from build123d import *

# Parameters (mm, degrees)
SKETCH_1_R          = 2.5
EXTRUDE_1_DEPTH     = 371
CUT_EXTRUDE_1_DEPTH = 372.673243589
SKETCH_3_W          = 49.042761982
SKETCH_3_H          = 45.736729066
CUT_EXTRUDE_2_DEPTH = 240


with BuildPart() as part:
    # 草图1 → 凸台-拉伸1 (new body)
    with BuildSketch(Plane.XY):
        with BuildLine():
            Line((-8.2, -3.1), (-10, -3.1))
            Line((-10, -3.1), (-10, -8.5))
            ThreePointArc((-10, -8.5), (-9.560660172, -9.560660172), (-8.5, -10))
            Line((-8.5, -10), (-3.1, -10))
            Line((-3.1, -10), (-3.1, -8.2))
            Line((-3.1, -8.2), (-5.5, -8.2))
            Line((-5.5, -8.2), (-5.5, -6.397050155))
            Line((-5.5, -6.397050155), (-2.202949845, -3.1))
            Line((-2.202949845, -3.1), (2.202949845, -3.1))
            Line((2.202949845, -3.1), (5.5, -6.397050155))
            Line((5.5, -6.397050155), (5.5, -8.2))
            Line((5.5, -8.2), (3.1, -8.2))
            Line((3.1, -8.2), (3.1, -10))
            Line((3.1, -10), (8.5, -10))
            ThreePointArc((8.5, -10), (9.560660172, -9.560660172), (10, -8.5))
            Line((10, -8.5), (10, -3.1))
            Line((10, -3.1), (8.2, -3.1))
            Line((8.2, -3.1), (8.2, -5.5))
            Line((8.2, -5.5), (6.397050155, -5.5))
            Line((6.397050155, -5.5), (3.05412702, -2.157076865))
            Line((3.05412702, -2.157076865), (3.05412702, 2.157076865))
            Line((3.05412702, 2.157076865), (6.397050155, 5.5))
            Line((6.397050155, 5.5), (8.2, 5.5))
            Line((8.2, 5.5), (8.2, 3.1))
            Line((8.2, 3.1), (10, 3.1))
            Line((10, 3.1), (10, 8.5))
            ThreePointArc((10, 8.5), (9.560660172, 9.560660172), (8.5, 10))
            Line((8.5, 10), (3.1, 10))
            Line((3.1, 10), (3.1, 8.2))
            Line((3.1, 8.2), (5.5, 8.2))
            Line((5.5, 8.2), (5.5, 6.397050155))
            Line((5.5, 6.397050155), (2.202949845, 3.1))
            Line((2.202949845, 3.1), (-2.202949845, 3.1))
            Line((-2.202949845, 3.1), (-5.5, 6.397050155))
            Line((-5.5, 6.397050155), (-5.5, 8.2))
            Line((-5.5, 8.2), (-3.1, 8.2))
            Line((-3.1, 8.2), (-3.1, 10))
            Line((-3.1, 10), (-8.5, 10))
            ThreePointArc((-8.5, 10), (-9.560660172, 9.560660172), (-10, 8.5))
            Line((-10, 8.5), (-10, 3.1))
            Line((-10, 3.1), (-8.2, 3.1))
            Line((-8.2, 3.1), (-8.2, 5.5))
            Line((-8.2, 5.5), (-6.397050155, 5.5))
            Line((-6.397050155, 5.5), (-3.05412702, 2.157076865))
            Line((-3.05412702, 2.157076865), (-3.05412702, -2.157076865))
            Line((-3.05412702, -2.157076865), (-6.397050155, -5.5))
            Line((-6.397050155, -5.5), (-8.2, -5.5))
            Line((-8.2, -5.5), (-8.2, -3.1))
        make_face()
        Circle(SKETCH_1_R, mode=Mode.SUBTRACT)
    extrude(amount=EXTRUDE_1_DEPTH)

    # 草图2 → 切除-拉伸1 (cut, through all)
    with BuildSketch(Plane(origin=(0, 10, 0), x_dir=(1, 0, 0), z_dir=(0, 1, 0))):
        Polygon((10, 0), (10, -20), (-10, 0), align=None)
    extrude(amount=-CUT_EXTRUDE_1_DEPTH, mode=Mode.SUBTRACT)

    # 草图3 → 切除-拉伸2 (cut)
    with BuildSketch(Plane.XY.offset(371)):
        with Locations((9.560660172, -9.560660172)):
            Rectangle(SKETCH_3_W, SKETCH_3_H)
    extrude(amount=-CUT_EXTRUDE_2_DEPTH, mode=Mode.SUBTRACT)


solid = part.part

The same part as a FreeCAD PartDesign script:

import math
import FreeCAD as App
import Part
import Sketcher
from FreeCAD import Vector
Q = App.Units.Quantity


def add_polygon(sketch, points):
    """Adds a closed chain of lines whose ends are joined by coincident constraints."""
    first, n = sketch.GeometryCount, len(points)
    for a, b in zip(points, points[1:] + points[:1]):
        sketch.addGeometry(Part.LineSegment(App.Vector(*a, 0), App.Vector(*b, 0)), False)
    for i in range(n):
        sketch.addConstraint(Sketcher.Constraint("Coincident", first + i, 2, first + (i + 1) % n, 1))

doc = App.newDocument("Part")
body = doc.addObject("PartDesign::Body", "Body")

sketch1 = body.newObject("Sketcher::SketchObject", "Sketch")
sketch1.AttachmentSupport = (doc.getObject("XY_Plane"), [""])
sketch1.MapMode = "FlatFace"
sketch1.addGeometry(Part.LineSegment(Vector(-8.2, -3.1, 0), Vector(-10, -3.1, 0)), False)
sketch1.addGeometry(Part.LineSegment(Vector(-10, -3.1, 0), Vector(-10, -8.5, 0)), False)
sketch1.addGeometry(Part.ArcOfCircle(Part.Circle(Vector(-8.5, -8.5, 0), Vector(0, 0, 1), 1.5), math.radians(180), math.radians(270)), False)
sketch1.addGeometry(Part.LineSegment(Vector(-8.5, -10, 0), Vector(-3.1, -10, 0)), False)
sketch1.addGeometry(Part.LineSegment(Vector(-3.1, -10, 0), Vector(-3.1, -8.2, 0)), False)
sketch1.addGeometry(Part.LineSegment(Vector(-3.1, -8.2, 0), Vector(-5.5, -8.2, 0)), False)
sketch1.addGeometry(Part.LineSegment(Vector(-5.5, -8.2, 0), Vector(-5.5, -6.39705, 0)), False)
sketch1.addGeometry(Part.LineSegment(Vector(-5.5, -6.39705, 0), Vector(-2.20295, -3.1, 0)), False)
sketch1.addGeometry(Part.LineSegment(Vector(-2.20295, -3.1, 0), Vector(2.20295, -3.1, 0)), False)
sketch1.addGeometry(Part.LineSegment(Vector(2.20295, -3.1, 0), Vector(5.5, -6.39705, 0)), False)
sketch1.addGeometry(Part.LineSegment(Vector(5.5, -6.39705, 0), Vector(5.5, -8.2, 0)), False)
sketch1.addGeometry(Part.LineSegment(Vector(5.5, -8.2, 0), Vector(3.1, -8.2, 0)), False)
sketch1.addGeometry(Part.LineSegment(Vector(3.1, -8.2, 0), Vector(3.1, -10, 0)), False)
sketch1.addGeometry(Part.LineSegment(Vector(3.1, -10, 0), Vector(8.5, -10, 0)), False)
sketch1.addGeometry(Part.ArcOfCircle(Part.Circle(Vector(8.5, -8.5, 0), Vector(0, 0, 1), 1.5), math.radians(-90), math.radians(0)), False)
sketch1.addGeometry(Part.LineSegment(Vector(10, -8.5, 0), Vector(10, -3.1, 0)), False)
sketch1.addGeometry(Part.LineSegment(Vector(10, -3.1, 0), Vector(8.2, -3.1, 0)), False)
sketch1.addGeometry(Part.LineSegment(Vector(8.2, -3.1, 0), Vector(8.2, -5.5, 0)), False)
sketch1.addGeometry(Part.LineSegment(Vector(8.2, -5.5, 0), Vector(6.39705, -5.5, 0)), False)
sketch1.addGeometry(Part.LineSegment(Vector(6.39705, -5.5, 0), Vector(3.054127, -2.157077, 0)), False)
sketch1.addGeometry(Part.LineSegment(Vector(3.054127, -2.157077, 0), Vector(3.054127, 2.157077, 0)), False)
sketch1.addGeometry(Part.LineSegment(Vector(3.054127, 2.157077, 0), Vector(6.39705, 5.5, 0)), False)
sketch1.addGeometry(Part.LineSegment(Vector(6.39705, 5.5, 0), Vector(8.2, 5.5, 0)), False)
sketch1.addGeometry(Part.LineSegment(Vector(8.2, 5.5, 0), Vector(8.2, 3.1, 0)), False)
sketch1.addGeometry(Part.LineSegment(Vector(8.2, 3.1, 0), Vector(10, 3.1, 0)), False)
sketch1.addGeometry(Part.LineSegment(Vector(10, 3.1, 0), Vector(10, 8.5, 0)), False)
sketch1.addGeometry(Part.ArcOfCircle(Part.Circle(Vector(8.5, 8.5, 0), Vector(0, 0, 1), 1.5), math.radians(0), math.radians(90)), False)
sketch1.addGeometry(Part.LineSegment(Vector(8.5, 10, 0), Vector(3.1, 10, 0)), False)
sketch1.addGeometry(Part.LineSegment(Vector(3.1, 10, 0), Vector(3.1, 8.2, 0)), False)
sketch1.addGeometry(Part.LineSegment(Vector(3.1, 8.2, 0), Vector(5.5, 8.2, 0)), False)
sketch1.addGeometry(Part.LineSegment(Vector(5.5, 8.2, 0), Vector(5.5, 6.39705, 0)), False)
sketch1.addGeometry(Part.LineSegment(Vector(5.5, 6.39705, 0), Vector(2.20295, 3.1, 0)), False)
sketch1.addGeometry(Part.LineSegment(Vector(2.20295, 3.1, 0), Vector(-2.20295, 3.1, 0)), False)
sketch1.addGeometry(Part.LineSegment(Vector(-2.20295, 3.1, 0), Vector(-5.5, 6.39705, 0)), False)
sketch1.addGeometry(Part.LineSegment(Vector(-5.5, 6.39705, 0), Vector(-5.5, 8.2, 0)), False)
sketch1.addGeometry(Part.LineSegment(Vector(-5.5, 8.2, 0), Vector(-3.1, 8.2, 0)), False)
sketch1.addGeometry(Part.LineSegment(Vector(-3.1, 8.2, 0), Vector(-3.1, 10, 0)), False)
sketch1.addGeometry(Part.LineSegment(Vector(-3.1, 10, 0), Vector(-8.5, 10, 0)), False)
sketch1.addGeometry(Part.ArcOfCircle(Part.Circle(Vector(-8.5, 8.5, 0), Vector(0, 0, 1), 1.5), math.radians(90), math.radians(180)), False)
sketch1.addGeometry(Part.LineSegment(Vector(-10, 8.5, 0), Vector(-10, 3.1, 0)), False)
sketch1.addGeometry(Part.LineSegment(Vector(-10, 3.1, 0), Vector(-8.2, 3.1, 0)), False)
sketch1.addGeometry(Part.LineSegment(Vector(-8.2, 3.1, 0), Vector(-8.2, 5.5, 0)), False)
sketch1.addGeometry(Part.LineSegment(Vector(-8.2, 5.5, 0), Vector(-6.39705, 5.5, 0)), False)
sketch1.addGeometry(Part.LineSegment(Vector(-6.39705, 5.5, 0), Vector(-3.054127, 2.157077, 0)), False)
sketch1.addGeometry(Part.LineSegment(Vector(-3.054127, 2.157077, 0), Vector(-3.054127, -2.157077, 0)), False)
sketch1.addGeometry(Part.LineSegment(Vector(-3.054127, -2.157077, 0), Vector(-6.39705, -5.5, 0)), False)
sketch1.addGeometry(Part.LineSegment(Vector(-6.39705, -5.5, 0), Vector(-8.2, -5.5, 0)), False)
sketch1.addGeometry(Part.LineSegment(Vector(-8.2, -5.5, 0), Vector(-8.2, -3.1, 0)), False)
sketch1.addGeometry(Part.Circle(Vector(0, 0, 0), Vector(0, 0, 1), 2.5), False)
sketch1.addConstraint(Sketcher.Constraint("Coincident", 0, 2, 1, 1))
sketch1.addConstraint(Sketcher.Constraint("Tangent", 1, 2, 2, 1))
sketch1.addConstraint(Sketcher.Constraint("Tangent", 2, 2, 3, 1))
sketch1.addConstraint(Sketcher.Constraint("Coincident", 3, 2, 4, 1))
sketch1.addConstraint(Sketcher.Constraint("Coincident", 4, 2, 5, 1))
sketch1.addConstraint(Sketcher.Constraint("Coincident", 5, 2, 6, 1))
sketch1.addConstraint(Sketcher.Constraint("Coincident", 6, 2, 7, 1))
sketch1.addConstraint(Sketcher.Constraint("Coincident", 7, 2, 8, 1))
sketch1.addConstraint(Sketcher.Constraint("Coincident", 8, 2, 9, 1))
sketch1.addConstraint(Sketcher.Constraint("Coincident", 9, 2, 10, 1))
sketch1.addConstraint(Sketcher.Constraint("Coincident", 10, 2, 11, 1))
sketch1.addConstraint(Sketcher.Constraint("Coincident", 11, 2, 12, 1))
sketch1.addConstraint(Sketcher.Constraint("Coincident", 12, 2, 13, 1))
sketch1.addConstraint(Sketcher.Constraint("Tangent", 13, 2, 14, 1))
sketch1.addConstraint(Sketcher.Constraint("Tangent", 14, 2, 15, 1))
sketch1.addConstraint(Sketcher.Constraint("Coincident", 15, 2, 16, 1))
sketch1.addConstraint(Sketcher.Constraint("Coincident", 16, 2, 17, 1))
sketch1.addConstraint(Sketcher.Constraint("Coincident", 17, 2, 18, 1))
sketch1.addConstraint(Sketcher.Constraint("Coincident", 18, 2, 19, 1))
sketch1.addConstraint(Sketcher.Constraint("Coincident", 19, 2, 20, 1))
sketch1.addConstraint(Sketcher.Constraint("Coincident", 20, 2, 21, 1))
sketch1.addConstraint(Sketcher.Constraint("Coincident", 21, 2, 22, 1))
sketch1.addConstraint(Sketcher.Constraint("Coincident", 22, 2, 23, 1))
sketch1.addConstraint(Sketcher.Constraint("Coincident", 23, 2, 24, 1))
sketch1.addConstraint(Sketcher.Constraint("Coincident", 24, 2, 25, 1))
sketch1.addConstraint(Sketcher.Constraint("Tangent", 25, 2, 26, 1))
sketch1.addConstraint(Sketcher.Constraint("Tangent", 26, 2, 27, 1))
sketch1.addConstraint(Sketcher.Constraint("Coincident", 27, 2, 28, 1))
sketch1.addConstraint(Sketcher.Constraint("Coincident", 28, 2, 29, 1))
sketch1.addConstraint(Sketcher.Constraint("Coincident", 29, 2, 30, 1))
sketch1.addConstraint(Sketcher.Constraint("Coincident", 30, 2, 31, 1))
sketch1.addConstraint(Sketcher.Constraint("Coincident", 31, 2, 32, 1))
sketch1.addConstraint(Sketcher.Constraint("Coincident", 32, 2, 33, 1))
sketch1.addConstraint(Sketcher.Constraint("Coincident", 33, 2, 34, 1))
sketch1.addConstraint(Sketcher.Constraint("Coincident", 34, 2, 35, 1))
sketch1.addConstraint(Sketcher.Constraint("Coincident", 35, 2, 36, 1))
sketch1.addConstraint(Sketcher.Constraint("Coincident", 36, 2, 37, 1))
sketch1.addConstraint(Sketcher.Constraint("Tangent", 37, 2, 38, 1))
sketch1.addConstraint(Sketcher.Constraint("Tangent", 38, 2, 39, 1))
sketch1.addConstraint(Sketcher.Constraint("Coincident", 39, 2, 40, 1))
sketch1.addConstraint(Sketcher.Constraint("Coincident", 40, 2, 41, 1))
sketch1.addConstraint(Sketcher.Constraint("Coincident", 41, 2, 42, 1))
sketch1.addConstraint(Sketcher.Constraint("Coincident", 42, 2, 43, 1))
sketch1.addConstraint(Sketcher.Constraint("Coincident", 43, 2, 44, 1))
sketch1.addConstraint(Sketcher.Constraint("Coincident", 44, 2, 45, 1))
sketch1.addConstraint(Sketcher.Constraint("Coincident", 45, 2, 46, 1))
sketch1.addConstraint(Sketcher.Constraint("Coincident", 46, 2, 47, 1))
sketch1.addConstraint(Sketcher.Constraint("Coincident", 47, 2, 0, 1))
sketch1.addConstraint(Sketcher.Constraint("Horizontal", 0))
sketch1.addConstraint(Sketcher.Constraint("Vertical", 1))
sketch1.addConstraint(Sketcher.Constraint("Horizontal", 3))
sketch1.addConstraint(Sketcher.Constraint("Vertical", 4))
sketch1.addConstraint(Sketcher.Constraint("Horizontal", 5))
sketch1.addConstraint(Sketcher.Constraint("Vertical", 6))
sketch1.addConstraint(Sketcher.Constraint("Horizontal", 8))
sketch1.addConstraint(Sketcher.Constraint("Vertical", 10))
sketch1.addConstraint(Sketcher.Constraint("Horizontal", 11))
sketch1.addConstraint(Sketcher.Constraint("Vertical", 12))
sketch1.addConstraint(Sketcher.Constraint("Horizontal", 13))
sketch1.addConstraint(Sketcher.Constraint("Vertical", 15))
sketch1.addConstraint(Sketcher.Constraint("Horizontal", 16))
sketch1.addConstraint(Sketcher.Constraint("Vertical", 17))
sketch1.addConstraint(Sketcher.Constraint("Horizontal", 18))
sketch1.addConstraint(Sketcher.Constraint("Vertical", 20))
sketch1.addConstraint(Sketcher.Constraint("Horizontal", 22))
sketch1.addConstraint(Sketcher.Constraint("Vertical", 23))
sketch1.addConstraint(Sketcher.Constraint("Horizontal", 24))
sketch1.addConstraint(Sketcher.Constraint("Vertical", 25))
sketch1.addConstraint(Sketcher.Constraint("Horizontal", 27))
sketch1.addConstraint(Sketcher.Constraint("Vertical", 28))
sketch1.addConstraint(Sketcher.Constraint("Horizontal", 29))
sketch1.addConstraint(Sketcher.Constraint("Vertical", 30))
sketch1.addConstraint(Sketcher.Constraint("Horizontal", 32))
sketch1.addConstraint(Sketcher.Constraint("Vertical", 34))
sketch1.addConstraint(Sketcher.Constraint("Horizontal", 35))
sketch1.addConstraint(Sketcher.Constraint("Vertical", 36))
sketch1.addConstraint(Sketcher.Constraint("Horizontal", 37))
sketch1.addConstraint(Sketcher.Constraint("Vertical", 39))
sketch1.addConstraint(Sketcher.Constraint("Horizontal", 40))
sketch1.addConstraint(Sketcher.Constraint("Vertical", 41))
sketch1.addConstraint(Sketcher.Constraint("Horizontal", 42))
sketch1.addConstraint(Sketcher.Constraint("Vertical", 44))
sketch1.addConstraint(Sketcher.Constraint("Horizontal", 46))
sketch1.addConstraint(Sketcher.Constraint("Vertical", 47))
sketch1.addConstraint(Sketcher.Constraint("Coincident", 48, 3, -1, 1))
sketch1.addConstraint(Sketcher.Constraint("Equal", 2, 14))
sketch1.addConstraint(Sketcher.Constraint("Equal", 14, 26))
sketch1.addConstraint(Sketcher.Constraint("Equal", 26, 38))
sketch1.addConstraint(Sketcher.Constraint("Symmetric", 2, 3, 26, 3, -1, 1))
sketch1.addConstraint(Sketcher.Constraint("Symmetric", 14, 3, 38, 3, -1, 1))
sketch1.addConstraint(Sketcher.Constraint("Symmetric", 4, 2, 28, 2, -1, 1))
sketch1.addConstraint(Sketcher.Constraint("Symmetric", 6, 2, 30, 2, -1, 1))
sketch1.addConstraint(Sketcher.Constraint("Symmetric", 7, 2, 31, 2, -1, 1))
sketch1.addConstraint(Sketcher.Constraint("Symmetric", 9, 2, 33, 2, -1, 1))
sketch1.addConstraint(Sketcher.Constraint("Symmetric", 11, 2, 35, 2, -1, 1))
sketch1.addConstraint(Sketcher.Constraint("Symmetric", 16, 2, 40, 2, -1, 1))
sketch1.addConstraint(Sketcher.Constraint("Symmetric", 18, 2, 42, 2, -1, 1))
sketch1.addConstraint(Sketcher.Constraint("Symmetric", 19, 2, 43, 2, -1, 1))
sketch1.addConstraint(Sketcher.Constraint("Symmetric", 21, 2, 45, 2, -1, 1))
sketch1.addConstraint(Sketcher.Constraint("Symmetric", 23, 2, 47, 2, -1, 1))
sketch1.addConstraint(Sketcher.Constraint("Symmetric", 2, 3, 14, 3, -2))
sketch1.addConstraint(Sketcher.Constraint("Symmetric", 6, 2, 9, 2, -2))
sketch1.addConstraint(Sketcher.Constraint("Symmetric", 4, 2, 11, 2, -2))
sketch1.addConstraint(Sketcher.Constraint("Symmetric", 23, 2, 40, 2, -2))
sketch1.addConstraint(Sketcher.Constraint("Symmetric", 21, 2, 42, 2, -2))
sketch1.addConstraint(Sketcher.Constraint("Perpendicular", 7, 9))
sketch1.addConstraint(Sketcher.Constraint("Parallel", 9, 19))
sketch1.addConstraint(Sketcher.Constraint("Perpendicular", 19, 21))
sketch1.addConstraint(Sketcher.Constraint("Perpendicular", 31, 33))
sketch1.addConstraint(Sketcher.Constraint("Perpendicular", 43, 45))
sketch1.addConstraint(Sketcher.Constraint("Horizontal", 0, 2, 7, 2))
sketch1.addConstraint(Sketcher.Constraint("Horizontal", 20, 2, 43, 2))
sketch1.addConstraint(Sketcher.Constraint("Equal", 37, 1))
sketch1.addConstraint(Sketcher.Constraint("Equal", 40, 4))
sketch1.addConstraint(Sketcher.Constraint("Equal", 46, 6))
sketch1.addConstraint(Sketcher.Constraint("Equal", 35, 17))
sketch1.addConstraint(Sketcher.Constraint("Diameter", 48, Q("5 mm")))
sketch1.addConstraint(Sketcher.Constraint("Radius", 2, Q("1.5 mm")))
sketch1.addConstraint(Sketcher.Constraint("DistanceX", 0, 2, 0, 1, Q("1.8 mm")))
sketch1.addConstraint(Sketcher.Constraint("DistanceX", 3, 1, 3, 2, Q("5.4 mm")))
sketch1.addConstraint(Sketcher.Constraint("DistanceX", 5, 2, 5, 1, Q("2.4 mm")))
sketch1.addConstraint(Sketcher.Constraint("DistanceX", 0, 2, -1, 1, Q("10 mm")))
sketch1.addConstraint(Sketcher.Constraint("DistanceY", 2, 2, -1, 1, Q("10 mm")))
sketch1.addConstraint(Sketcher.Constraint("DistanceX", 8, 1, 8, 2, Q("4.4059 mm")))
sketch1.addConstraint(Sketcher.Constraint("DistanceY", 20, 1, 20, 2, Q("4.314154 mm")))
pad1 = body.newObject("PartDesign::Pad", "Pad")
pad1.Profile = sketch1
pad1.Length = 371

sketch2 = body.newObject("Sketcher::SketchObject", "Sketch001")
sketch2.AttachmentSupport = (doc.getObject("XZ_Plane"), [""])
sketch2.MapMode = "FlatFace"
sketch2.AttachmentOffset = App.Placement(Vector(0, 0, -10), App.Rotation())
add_polygon(sketch2, [(10, 20), (10, 0), (-10, 0)])
sketch2.addConstraint(Sketcher.Constraint("Vertical", 0))
sketch2.addConstraint(Sketcher.Constraint("Horizontal", 1))
sketch2.addConstraint(Sketcher.Constraint("Symmetric", 0, 2, 1, 2, -1, 1))
sketch2.addConstraint(Sketcher.Constraint("Equal", 1, 0))
sketch2.addConstraint(Sketcher.Constraint("DistanceX", 1, 2, 1, 1, Q("20 mm")))
pocket1 = body.newObject("PartDesign::Pocket", "Pocket")
pocket1.Profile = sketch2
pocket1.Type = "ThroughAll"
pocket1.Reversed = True

sketch3 = body.newObject("Sketcher::SketchObject", "Sketch002")
sketch3.AttachmentSupport = (doc.getObject("XY_Plane"), [""])
sketch3.MapMode = "FlatFace"
sketch3.AttachmentOffset = App.Placement(Vector(0, 0, 371), App.Rotation())
add_polygon(sketch3, [(-14.960721, 13.307704), (-14.960721, -32.429025), (34.082041, -32.429025), (34.082041, 13.307704)])
sketch3.addConstraint(Sketcher.Constraint("Vertical", 0))
sketch3.addConstraint(Sketcher.Constraint("Horizontal", 1))
sketch3.addConstraint(Sketcher.Constraint("Vertical", 2))
sketch3.addConstraint(Sketcher.Constraint("Horizontal", 3))
sketch3.addConstraint(Sketcher.Constraint("DistanceX", 1, 1, 1, 2, Q("49.042762 mm")))
sketch3.addConstraint(Sketcher.Constraint("DistanceY", 0, 2, 0, 1, Q("45.736729 mm")))
sketch3.addConstraint(Sketcher.Constraint("DistanceX", 0, 2, -1, 1, Q("14.960721 mm")))
sketch3.addConstraint(Sketcher.Constraint("DistanceY", 0, 2, -1, 1, Q("32.429025 mm")))
pocket2 = body.newObject("PartDesign::Pocket", "Pocket001")
pocket2.Profile = sketch3
pocket2.Length = 240

doc.recompute()
